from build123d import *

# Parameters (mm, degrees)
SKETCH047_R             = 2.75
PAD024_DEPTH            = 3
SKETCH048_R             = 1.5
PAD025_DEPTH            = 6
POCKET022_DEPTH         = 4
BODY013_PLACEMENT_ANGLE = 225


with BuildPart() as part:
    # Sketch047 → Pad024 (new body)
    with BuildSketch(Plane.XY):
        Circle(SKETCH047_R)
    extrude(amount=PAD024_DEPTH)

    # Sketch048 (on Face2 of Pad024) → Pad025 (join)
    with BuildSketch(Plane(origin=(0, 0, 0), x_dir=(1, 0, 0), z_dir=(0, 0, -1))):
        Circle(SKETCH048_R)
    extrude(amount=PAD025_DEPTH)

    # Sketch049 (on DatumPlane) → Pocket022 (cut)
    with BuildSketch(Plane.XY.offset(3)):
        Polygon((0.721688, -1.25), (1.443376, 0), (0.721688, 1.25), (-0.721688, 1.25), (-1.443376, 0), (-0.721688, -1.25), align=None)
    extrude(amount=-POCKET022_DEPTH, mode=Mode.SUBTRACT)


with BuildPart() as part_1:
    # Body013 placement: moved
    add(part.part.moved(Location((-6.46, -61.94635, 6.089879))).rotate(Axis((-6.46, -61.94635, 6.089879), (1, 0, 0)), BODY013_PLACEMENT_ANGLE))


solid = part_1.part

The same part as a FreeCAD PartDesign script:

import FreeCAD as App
import Part
import Sketcher
from FreeCAD import Vector
Q = App.Units.Quantity

doc = App.newDocument("Part")
body = doc.addObject("PartDesign::Body", "Body")

# Sketch on XY plane
sketch1 = doc.addObject("Sketcher::SketchObject", "Sketch")
body.addObject(sketch1)
sketch1.AttachmentSupport = (doc.XY_Plane, [""])
sketch1.MapMode = "FlatFace"
sketch1.addGeometry(Part.Circle(Vector(0, 0, 0), Vector(0, 0, 1), 2.8), False)
sketch1.addConstraint([
    Sketcher.Constraint("Coincident", 0, 3, -1, 1),
    Sketcher.Constraint("Diameter", 0, 5.5),
])
pad1 = doc.addObject("PartDesign::Pad", "Pad")
body.addObject(pad1)
pad1.Profile = sketch1
pad1.Length = 3

# Sketch on XY plane
sketch2 = doc.addObject("Sketcher::SketchObject", "Sketch001")
body.addObject(sketch2)
sketch2.AttachmentSupport = (doc.XY_Plane, [""])
sketch2.MapMode = "FlatFace"
sketch2.addGeometry(Part.Circle(Vector(0, 0, 0), Vector(0, 0, 1), 1.5), False)
sketch2.addConstraint([
    Sketcher.Constraint("Coincident", 0, 3, -1, 1),
    Sketcher.Constraint("Diameter", 0, 3.0),
])
pad2 = doc.addObject("PartDesign::Pad", "Pad001")
body.addObject(pad2)
pad2.Profile = sketch2
pad2.Length = 6
pad2.Reversed = True

# Sketch on XY plane
sketch3 = doc.addObject("Sketcher::SketchObject", "Sketch002")
body.addObject(sketch3)
sketch3.AttachmentSupport = (doc.XY_Plane, [""])
sketch3.MapMode = "FlatFace"
sketch3.AttachmentOffset = App.Placement(Vector(0, 0, 3), App.Rotation())
sketch3.addGeometry([
    Part.LineSegment(Vector(0.7, -1.2, 0), Vector(1.4, 0, 0)),  # 0
    Part.LineSegment(Vector(1.4, 0, 0), Vector(0.7, 1.2, 0)),  # 1
    Part.LineSegment(Vector(0.7, 1.2, 0), Vector(-0.7, 1.2, 0)),  # 2
    Part.LineSegment(Vector(-0.7, 1.2, 0), Vector(-1.4, 0, 0)),  # 3
    Part.LineSegment(Vector(-1.4, 0, 0), Vector(-0.7, -1.2, 0)),  # 4
    Part.LineSegment(Vector(-0.7, -1.2, 0), Vector(0.7, -1.2, 0)),  # 5
], False)
sketch3.addConstraint([
    Sketcher.Constraint("Coincident", 0, 2, 1, 1),
    Sketcher.Constraint("Coincident", 1, 2, 2, 1),
    Sketcher.Constraint("Coincident", 2, 2, 3, 1),
    Sketcher.Constraint("Coincident", 3, 2, 4, 1),
    Sketcher.Constraint("Coincident", 4, 2, 5, 1),
    Sketcher.Constraint("Coincident", 5, 2, 0, 1),
    Sketcher.Constraint("Horizontal", 2),
    Sketcher.Constraint("Horizontal", 5),
    Sketcher.Constraint("Symmetric", 0, 2, 3, 2, -1, 1),
    Sketcher.Constraint("Symmetric", 1, 2, 4, 2, -1, 1),
    Sketcher.Constraint("PointOnObject", 0, 2, -1),
    Sketcher.Constraint("Parallel", 0, 3),
    Sketcher.Constraint("Vertical", 2, 2, 4, 2),
    Sketcher.Constraint("Angle", 0, Q("59.999994 deg")),
    Sketcher.Constraint("DistanceY", 4, 2, 2, 2, 2.5),
    Sketcher.Constraint("DistanceX", 2, 2, 2, 1, 1.443376),
])
pocket1 = doc.addObject("PartDesign::Pocket", "Pocket")
body.addObject(pocket1)
pocket1.Profile = sketch3
pocket1.Length = 4
body2 = doc.addObject("PartDesign::Body", "Body001")
doc.recompute()

body.Placement = App.Placement(Vector(-6.46, -61.94635, 6.089879), App.Rotation(Vector(1, 0, 0), 225))
boolean = doc.addObject("PartDesign::Boolean", "Boolean")
body2.addObject(boolean)
boolean.Type = "Fuse"
boolean.addObjects([body])

doc.recompute()
